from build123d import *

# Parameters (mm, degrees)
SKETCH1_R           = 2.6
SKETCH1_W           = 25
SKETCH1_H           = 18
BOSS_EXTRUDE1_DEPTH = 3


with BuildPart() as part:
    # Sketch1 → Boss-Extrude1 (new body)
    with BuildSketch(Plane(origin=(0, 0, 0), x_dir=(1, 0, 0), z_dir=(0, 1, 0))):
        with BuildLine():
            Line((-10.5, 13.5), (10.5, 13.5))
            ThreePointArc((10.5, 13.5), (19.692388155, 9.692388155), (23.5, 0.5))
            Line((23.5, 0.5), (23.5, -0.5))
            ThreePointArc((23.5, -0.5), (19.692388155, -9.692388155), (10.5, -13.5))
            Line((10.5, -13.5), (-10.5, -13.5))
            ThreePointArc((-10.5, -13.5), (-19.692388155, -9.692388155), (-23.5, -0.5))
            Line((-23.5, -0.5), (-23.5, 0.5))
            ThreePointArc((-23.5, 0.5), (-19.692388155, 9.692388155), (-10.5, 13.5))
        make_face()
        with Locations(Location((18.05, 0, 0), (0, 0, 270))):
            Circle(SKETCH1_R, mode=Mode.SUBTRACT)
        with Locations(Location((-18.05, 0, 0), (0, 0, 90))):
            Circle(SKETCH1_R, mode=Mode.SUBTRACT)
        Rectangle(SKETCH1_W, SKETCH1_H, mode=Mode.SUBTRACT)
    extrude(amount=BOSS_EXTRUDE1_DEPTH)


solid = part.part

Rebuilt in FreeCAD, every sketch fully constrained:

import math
import FreeCAD as App
import Part
import Sketcher
from FreeCAD import Vector
Q = App.Units.Quantity


def add_polygon(sketch, points):
    """Adds a closed chain of lines whose ends are joined by coincident constraints."""
    first, n = sketch.GeometryCount, len(points)
    for a, b in zip(points, points[1:] + points[:1]):
        sketch.addGeometry(Part.LineSegment(App.Vector(*a, 0), App.Vector(*b, 0)), False)
    for i in range(n):
        sketch.addConstraint(Sketcher.Constraint("Coincident", first + i, 2, first + (i + 1) % n, 1))

doc = App.newDocument("Part")
body = doc.addObject("PartDesign::Body", "Body")

sketch1 = doc.addObject("Sketcher::SketchObject", "Sketch")
body.addObject(sketch1)
sketch1.AttachmentSupport = (doc.XZ_Plane, [""])
sketch1.MapMode = "FlatFace"
sketch1.addGeometry(Part.LineSegment(Vector(10.5, -13.5, 0), Vector(-10.5, -13.5, 0)), False)
sketch1.addGeometry(Part.ArcOfCircle(Part.Circle(Vector(-10.5, -0.5, 0), Vector(0, 0, 1), 13), math.radians(-180), math.radians(-90)), False)
sketch1.addGeometry(Part.LineSegment(Vector(-23.5, -0.5, 0), Vector(-23.5, 0.5, 0)), False)
sketch1.addGeometry(Part.ArcOfCircle(Part.Circle(Vector(-10.5, 0.5, 0), Vector(0, 0, 1), 13), math.radians(90), math.radians(180)), False)
sketch1.addGeometry(Part.LineSegment(Vector(-10.5, 13.5, 0), Vector(10.5, 13.5, 0)), False)
sketch1.addGeometry(Part.ArcOfCircle(Part.Circle(Vector(10.5, 0.5, 0), Vector(0, 0, 1), 13), math.radians(0), math.radians(90)), False)
sketch1.addGeometry(Part.LineSegment(Vector(23.5, 0.5, 0), Vector(23.5, -0.5, 0)), False)
sketch1.addGeometry(Part.ArcOfCircle(Part.Circle(Vector(10.5, -0.5, 0), Vector(0, 0, 1), 13), math.radians(-90), math.radians(0)), False)
sketch1.addGeometry(Part.Circle(Vector(18.1, 0, 0), Vector(0, 0, 1), 2.6), False)
add_polygon(sketch1, [(-12.5, 9), (-12.5, -9), (12.5, -9), (12.5, 9)])
sketch1.addGeometry(Part.Circle(Vector(-18.1, 0, 0), Vector(0, 0, 1), 2.6), False)
sketch1.addConstraint(Sketcher.Constraint("Tangent", 0, 2, 1, 2))
sketch1.addConstraint(Sketcher.Constraint("Tangent", 1, 1, 2, 1))
sketch1.addConstraint(Sketcher.Constraint("Tangent", 2, 2, 3, 2))
sketch1.addConstraint(Sketcher.Constraint("Tangent", 3, 1, 4, 1))
sketch1.addConstraint(Sketcher.Constraint("Tangent", 4, 2, 5, 2))
sketch1.addConstraint(Sketcher.Constraint("Tangent", 5, 1, 6, 1))
sketch1.addConstraint(Sketcher.Constraint("Tangent", 6, 2, 7, 2))
sketch1.addConstraint(Sketcher.Constraint("Tangent", 7, 1, 0, 1))
sketch1.addConstraint(Sketcher.Constraint("Horizontal", 0))
sketch1.addConstraint(Sketcher.Constraint("Vertical", 2))
sketch1.addConstraint(Sketcher.Constraint("Horizontal", 4))
sketch1.addConstraint(Sketcher.Constraint("Vertical", 6))
sketch1.addConstraint(Sketcher.Constraint("Vertical", 9))
sketch1.addConstraint(Sketcher.Constraint("Horizontal", 10))
sketch1.addConstraint(Sketcher.Constraint("Vertical", 11))
sketch1.addConstraint(Sketcher.Constraint("Horizontal", 12))
sketch1.addConstraint(Sketcher.Constraint("Equal", 1, 3))
sketch1.addConstraint(Sketcher.Constraint("Equal", 3, 5))
sketch1.addConstraint(Sketcher.Constraint("Equal", 5, 7))
sketch1.addConstraint(Sketcher.Constraint("Equal", 8, 13))
sketch1.addConstraint(Sketcher.Constraint("Symmetric", 1, 3, 5, 3, -1, 1))
sketch1.addConstraint(Sketcher.Constraint("Symmetric", 8, 3, 13, 3, -1, 1))
sketch1.addConstraint(Sketcher.Constraint("Symmetric", 9, 2, 11, 2, -1, 1))
sketch1.addConstraint(Sketcher.Constraint("PointOnObject", 8, 3, -1))
sketch1.addConstraint(Sketcher.Constraint("Radius", 1, Q("13 mm")))
sketch1.addConstraint(Sketcher.Constraint("Diameter", 8, Q("5.2 mm")))
sketch1.addConstraint(Sketcher.Constraint("DistanceX", 0, 2, 0, 1, Q("21 mm")))
sketch1.addConstraint(Sketcher.Constraint("DistanceX", 10, 1, 10, 2, Q("25 mm")))
sketch1.addConstraint(Sketcher.Constraint("DistanceY", 2, 1, 2, 2, Q("1 mm")))
sketch1.addConstraint(Sketcher.Constraint("DistanceY", 9, 2, 9, 1, Q("18 mm")))
sketch1.addConstraint(Sketcher.Constraint("DistanceX", 13, 3, 8, 3, Q("36.1 mm")))
pad1 = doc.addObject("PartDesign::Pad", "Pad")
body.addObject(pad1)
pad1.Profile = sketch1
pad1.Length = 3
pad1.Reversed = True

doc.recompute()
